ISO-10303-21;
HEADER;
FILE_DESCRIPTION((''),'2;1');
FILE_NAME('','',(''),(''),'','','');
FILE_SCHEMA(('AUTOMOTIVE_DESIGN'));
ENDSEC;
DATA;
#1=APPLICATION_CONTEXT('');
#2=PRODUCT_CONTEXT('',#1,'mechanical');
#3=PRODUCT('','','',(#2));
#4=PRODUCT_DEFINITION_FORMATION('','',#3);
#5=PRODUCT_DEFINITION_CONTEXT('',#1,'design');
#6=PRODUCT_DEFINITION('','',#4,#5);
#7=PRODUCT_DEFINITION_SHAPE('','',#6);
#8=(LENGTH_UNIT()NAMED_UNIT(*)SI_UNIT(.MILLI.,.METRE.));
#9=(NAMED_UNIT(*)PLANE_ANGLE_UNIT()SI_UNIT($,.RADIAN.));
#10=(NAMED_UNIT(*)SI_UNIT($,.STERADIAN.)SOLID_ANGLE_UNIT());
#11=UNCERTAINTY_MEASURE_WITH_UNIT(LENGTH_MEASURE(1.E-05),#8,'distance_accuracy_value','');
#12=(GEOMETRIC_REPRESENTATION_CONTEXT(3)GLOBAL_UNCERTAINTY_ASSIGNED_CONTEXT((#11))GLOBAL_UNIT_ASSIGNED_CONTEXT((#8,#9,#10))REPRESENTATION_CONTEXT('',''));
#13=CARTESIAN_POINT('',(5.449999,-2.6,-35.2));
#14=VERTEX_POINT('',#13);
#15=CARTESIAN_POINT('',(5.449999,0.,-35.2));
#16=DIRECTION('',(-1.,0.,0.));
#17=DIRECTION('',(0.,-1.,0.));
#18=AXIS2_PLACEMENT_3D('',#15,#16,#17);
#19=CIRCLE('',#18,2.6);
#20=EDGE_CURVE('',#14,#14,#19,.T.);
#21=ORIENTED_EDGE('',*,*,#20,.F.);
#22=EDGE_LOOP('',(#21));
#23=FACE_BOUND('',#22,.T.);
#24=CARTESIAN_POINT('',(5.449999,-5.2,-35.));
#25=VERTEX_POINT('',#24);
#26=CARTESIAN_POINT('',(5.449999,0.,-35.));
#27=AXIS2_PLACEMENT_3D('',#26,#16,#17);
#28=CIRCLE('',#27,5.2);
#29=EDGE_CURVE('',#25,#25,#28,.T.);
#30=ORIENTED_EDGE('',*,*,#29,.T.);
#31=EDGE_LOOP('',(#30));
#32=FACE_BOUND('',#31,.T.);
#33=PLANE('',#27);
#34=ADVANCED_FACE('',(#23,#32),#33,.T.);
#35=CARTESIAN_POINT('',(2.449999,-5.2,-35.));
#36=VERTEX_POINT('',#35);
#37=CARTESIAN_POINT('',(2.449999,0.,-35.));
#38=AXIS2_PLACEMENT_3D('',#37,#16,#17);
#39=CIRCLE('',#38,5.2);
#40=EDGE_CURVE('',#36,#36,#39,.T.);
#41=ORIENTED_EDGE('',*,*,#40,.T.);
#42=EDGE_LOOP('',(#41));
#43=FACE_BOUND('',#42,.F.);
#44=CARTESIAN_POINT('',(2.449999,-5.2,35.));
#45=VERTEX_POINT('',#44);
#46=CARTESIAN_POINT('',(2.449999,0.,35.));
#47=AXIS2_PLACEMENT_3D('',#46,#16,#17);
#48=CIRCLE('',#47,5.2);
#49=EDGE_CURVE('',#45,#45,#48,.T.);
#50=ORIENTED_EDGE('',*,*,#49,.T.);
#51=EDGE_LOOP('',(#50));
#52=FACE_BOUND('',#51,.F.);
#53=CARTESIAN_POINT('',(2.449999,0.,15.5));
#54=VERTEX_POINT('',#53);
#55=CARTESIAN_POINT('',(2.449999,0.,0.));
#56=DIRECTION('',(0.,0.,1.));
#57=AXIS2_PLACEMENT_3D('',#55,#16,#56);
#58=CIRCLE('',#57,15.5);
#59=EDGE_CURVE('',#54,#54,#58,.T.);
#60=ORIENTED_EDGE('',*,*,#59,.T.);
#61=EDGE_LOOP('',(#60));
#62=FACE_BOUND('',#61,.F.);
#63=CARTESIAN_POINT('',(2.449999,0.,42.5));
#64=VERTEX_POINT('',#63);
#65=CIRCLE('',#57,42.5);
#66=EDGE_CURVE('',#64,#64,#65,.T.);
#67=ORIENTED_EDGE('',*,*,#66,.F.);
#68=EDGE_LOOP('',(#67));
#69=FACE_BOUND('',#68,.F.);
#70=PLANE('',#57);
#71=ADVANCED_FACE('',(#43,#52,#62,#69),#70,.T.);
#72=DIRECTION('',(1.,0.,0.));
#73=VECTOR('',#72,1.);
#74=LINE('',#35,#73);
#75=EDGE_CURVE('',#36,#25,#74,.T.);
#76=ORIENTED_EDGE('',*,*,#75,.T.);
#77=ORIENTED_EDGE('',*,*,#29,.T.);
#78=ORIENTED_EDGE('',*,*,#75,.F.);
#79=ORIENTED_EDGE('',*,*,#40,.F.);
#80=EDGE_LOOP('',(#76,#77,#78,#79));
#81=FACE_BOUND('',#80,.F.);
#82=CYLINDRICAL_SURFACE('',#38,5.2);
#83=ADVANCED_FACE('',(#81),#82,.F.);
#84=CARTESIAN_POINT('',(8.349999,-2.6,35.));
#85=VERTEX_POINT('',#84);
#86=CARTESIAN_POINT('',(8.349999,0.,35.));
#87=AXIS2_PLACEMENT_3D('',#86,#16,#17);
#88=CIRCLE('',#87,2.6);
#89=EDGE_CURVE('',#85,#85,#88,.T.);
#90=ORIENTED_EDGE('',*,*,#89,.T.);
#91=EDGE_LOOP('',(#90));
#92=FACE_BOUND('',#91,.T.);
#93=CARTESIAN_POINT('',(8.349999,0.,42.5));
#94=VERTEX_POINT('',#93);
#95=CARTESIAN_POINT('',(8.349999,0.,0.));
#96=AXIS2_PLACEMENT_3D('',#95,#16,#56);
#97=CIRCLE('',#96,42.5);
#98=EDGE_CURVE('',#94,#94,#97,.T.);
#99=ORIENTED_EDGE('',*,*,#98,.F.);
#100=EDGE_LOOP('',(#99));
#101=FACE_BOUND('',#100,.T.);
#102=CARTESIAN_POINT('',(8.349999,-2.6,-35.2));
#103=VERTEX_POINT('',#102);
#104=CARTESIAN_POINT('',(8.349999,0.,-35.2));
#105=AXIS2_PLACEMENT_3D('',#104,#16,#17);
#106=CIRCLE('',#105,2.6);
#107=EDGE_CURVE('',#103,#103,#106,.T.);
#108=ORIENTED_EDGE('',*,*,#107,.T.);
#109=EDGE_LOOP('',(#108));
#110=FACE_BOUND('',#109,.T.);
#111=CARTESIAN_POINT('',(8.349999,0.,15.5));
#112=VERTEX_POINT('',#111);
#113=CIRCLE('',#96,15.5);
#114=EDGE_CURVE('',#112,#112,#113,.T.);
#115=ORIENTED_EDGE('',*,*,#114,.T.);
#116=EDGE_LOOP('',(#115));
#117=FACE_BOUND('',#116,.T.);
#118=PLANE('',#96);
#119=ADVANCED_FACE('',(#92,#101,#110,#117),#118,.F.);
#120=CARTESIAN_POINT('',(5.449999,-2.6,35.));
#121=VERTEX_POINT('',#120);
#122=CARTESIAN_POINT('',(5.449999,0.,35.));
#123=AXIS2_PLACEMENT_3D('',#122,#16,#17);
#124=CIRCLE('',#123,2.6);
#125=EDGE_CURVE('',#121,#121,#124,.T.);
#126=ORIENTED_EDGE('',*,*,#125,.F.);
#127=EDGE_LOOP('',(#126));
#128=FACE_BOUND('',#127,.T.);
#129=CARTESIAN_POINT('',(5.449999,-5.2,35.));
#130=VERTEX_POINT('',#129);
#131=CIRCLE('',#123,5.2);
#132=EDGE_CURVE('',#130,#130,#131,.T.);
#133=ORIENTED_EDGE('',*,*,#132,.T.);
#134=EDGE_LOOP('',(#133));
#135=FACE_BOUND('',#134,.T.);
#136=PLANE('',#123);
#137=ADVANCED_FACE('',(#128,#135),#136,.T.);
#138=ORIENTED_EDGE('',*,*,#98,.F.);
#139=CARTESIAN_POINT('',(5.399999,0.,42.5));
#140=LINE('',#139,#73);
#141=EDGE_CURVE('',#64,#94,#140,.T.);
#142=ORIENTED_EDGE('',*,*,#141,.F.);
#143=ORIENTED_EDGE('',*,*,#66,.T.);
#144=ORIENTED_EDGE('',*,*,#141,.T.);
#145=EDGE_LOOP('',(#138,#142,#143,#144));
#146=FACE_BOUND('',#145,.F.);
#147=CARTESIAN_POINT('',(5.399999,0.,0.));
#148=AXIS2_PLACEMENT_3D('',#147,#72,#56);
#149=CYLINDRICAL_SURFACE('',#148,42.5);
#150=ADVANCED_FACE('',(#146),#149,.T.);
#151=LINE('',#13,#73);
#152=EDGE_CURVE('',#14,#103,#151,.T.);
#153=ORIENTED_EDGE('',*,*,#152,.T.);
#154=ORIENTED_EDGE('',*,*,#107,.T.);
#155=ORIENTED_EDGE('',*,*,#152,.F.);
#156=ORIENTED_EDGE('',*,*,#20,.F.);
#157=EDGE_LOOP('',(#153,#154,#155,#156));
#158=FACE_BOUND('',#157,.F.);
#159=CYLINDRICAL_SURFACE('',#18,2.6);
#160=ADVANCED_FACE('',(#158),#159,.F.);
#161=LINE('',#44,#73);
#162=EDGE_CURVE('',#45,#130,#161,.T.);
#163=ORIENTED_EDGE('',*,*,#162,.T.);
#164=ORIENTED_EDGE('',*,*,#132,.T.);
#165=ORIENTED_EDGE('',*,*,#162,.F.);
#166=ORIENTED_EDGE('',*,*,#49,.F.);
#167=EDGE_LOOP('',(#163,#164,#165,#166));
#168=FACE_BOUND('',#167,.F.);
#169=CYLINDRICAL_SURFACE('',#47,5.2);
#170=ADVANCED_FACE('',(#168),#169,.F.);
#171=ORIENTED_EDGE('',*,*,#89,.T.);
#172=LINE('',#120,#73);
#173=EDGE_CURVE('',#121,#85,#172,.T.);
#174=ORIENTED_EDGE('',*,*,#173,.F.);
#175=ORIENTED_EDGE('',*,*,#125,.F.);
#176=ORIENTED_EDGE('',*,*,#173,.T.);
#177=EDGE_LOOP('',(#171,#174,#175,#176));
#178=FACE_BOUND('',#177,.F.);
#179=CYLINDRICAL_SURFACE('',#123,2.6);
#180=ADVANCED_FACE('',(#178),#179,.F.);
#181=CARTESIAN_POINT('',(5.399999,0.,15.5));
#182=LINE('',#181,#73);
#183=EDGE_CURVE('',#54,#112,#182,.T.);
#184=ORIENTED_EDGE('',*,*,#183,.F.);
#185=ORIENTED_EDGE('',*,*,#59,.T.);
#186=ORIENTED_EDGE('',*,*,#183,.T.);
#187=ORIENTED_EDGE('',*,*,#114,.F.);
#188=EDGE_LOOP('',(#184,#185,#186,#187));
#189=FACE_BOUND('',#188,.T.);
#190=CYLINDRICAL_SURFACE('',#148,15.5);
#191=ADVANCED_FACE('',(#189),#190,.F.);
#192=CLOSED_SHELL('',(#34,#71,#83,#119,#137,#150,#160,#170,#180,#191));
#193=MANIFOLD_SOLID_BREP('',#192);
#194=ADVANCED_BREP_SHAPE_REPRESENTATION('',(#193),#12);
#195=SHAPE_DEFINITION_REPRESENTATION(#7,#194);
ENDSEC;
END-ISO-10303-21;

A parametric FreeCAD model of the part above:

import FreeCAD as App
import Part
import Sketcher

V = App.Vector


def add_polygon(sketch, points):
    """Adds a closed chain of lines whose ends are joined by coincident constraints."""
    first, n = sketch.GeometryCount, len(points)
    for a, b in zip(points, points[1:] + points[:1]):
        sketch.addGeometry(Part.LineSegment(App.Vector(*a, 0), App.Vector(*b, 0)), False)
    for i in range(n):
        sketch.addConstraint(Sketcher.Constraint("Coincident", first + i, 2, first + (i + 1) % n, 1))

doc = App.newDocument("Part")
body = doc.addObject("PartDesign::Body", "Body")

# Sketch on XZ plane
sketch1 = body.newObject("Sketcher::SketchObject", "Sketch")
sketch1.AttachmentSupport = (doc.getObject("XZ_Plane"), [""])
sketch1.MapMode = "FlatFace"
add_polygon(sketch1, [(2, 42), (2, 16), (8, 16), (8, 42)])  # lines 0-3
sketch1.addConstraint(Sketcher.Constraint("Vertical", 0))
sketch1.addConstraint(Sketcher.Constraint("Horizontal", 1))
sketch1.addConstraint(Sketcher.Constraint("Vertical", 2))
sketch1.addConstraint(Sketcher.Constraint("Horizontal", 3))
sketch1.addConstraint(Sketcher.Constraint("DistanceY", 0, 2, 0, 1, 27.0))
sketch1.addConstraint(Sketcher.Constraint("DistanceX", 1, 1, 1, 2, 5.9))
sketch1.addConstraint(Sketcher.Constraint("DistanceY", -1, 1, 0, 2, 15.5))
sketch1.addConstraint(Sketcher.Constraint("DistanceX", -1, 1, 0, 2, 2.449999))
revolution = body.newObject("PartDesign::Revolution", "Revolution")
revolution.Profile = sketch1
revolution.ReferenceAxis = (sketch1, ["H_Axis"])
revolution.Angle = 360

# Sketch on YZ plane
sketch2 = body.newObject("Sketcher::SketchObject", "Sketch001")
sketch2.AttachmentSupport = (doc.getObject("YZ_Plane"), [""])
sketch2.MapMode = "FlatFace"
sketch2.AttachmentOffset = App.Placement(V(0, 0, 2.449999), App.Rotation())
sketch2.addGeometry(Part.Circle(V(0, 35, 0), V(0, 0, 1), 5), False)
sketch2.addGeometry(Part.Circle(V(0, -35, 0), V(0, 0, 1), 5), False)
sketch2.addConstraint(Sketcher.Constraint("Equal", 0, 1))
sketch2.addConstraint(Sketcher.Constraint("Symmetric", 0, 3, 1, 3, -1, 1))
sketch2.addConstraint(Sketcher.Constraint("PointOnObject", 0, 3, -2))
sketch2.addConstraint(Sketcher.Constraint("Diameter", 0, 10.4))
sketch2.addConstraint(Sketcher.Constraint("DistanceY", -1, 1, 0, 3, 35.0))
pocket1 = body.newObject("PartDesign::Pocket", "Pocket")
pocket1.Profile = sketch2
pocket1.Length = 3
pocket1.Reversed = True

# Sketch on YZ plane
sketch3 = body.newObject("Sketcher::SketchObject", "Sketch002")
sketch3.AttachmentSupport = (doc.getObject("YZ_Plane"), [""])
sketch3.MapMode = "FlatFace"
sketch3.AttachmentOffset = App.Placement(V(0, 0, 5.449999), App.Rotation())
sketch3.addGeometry(Part.Circle(V(0, -35.2, 0), V(0, 0, 1), 2.6), False)
sketch3.addGeometry(Part.Circle(V(0, 35, 0), V(0, 0, 1), 2.6), False)
sketch3.addConstraint(Sketcher.Constraint("Equal", 0, 1))
sketch3.addConstraint(Sketcher.Constraint("PointOnObject", 0, 3, -2))
sketch3.addConstraint(Sketcher.Constraint("PointOnObject", 1, 3, -2))
sketch3.addConstraint(Sketcher.Constraint("Diameter", 0, 5.2))
sketch3.addConstraint(Sketcher.Constraint("DistanceY", -1, 1, 1, 3, 35.0))
sketch3.addConstraint(Sketcher.Constraint("DistanceY", 0, 3, -1, 1, 35.2))
pocket2 = body.newObject("PartDesign::Pocket", "Pocket001")
pocket2.Profile = sketch3
pocket2.Length = 25
pocket2.Reversed = True

doc.recompute()
